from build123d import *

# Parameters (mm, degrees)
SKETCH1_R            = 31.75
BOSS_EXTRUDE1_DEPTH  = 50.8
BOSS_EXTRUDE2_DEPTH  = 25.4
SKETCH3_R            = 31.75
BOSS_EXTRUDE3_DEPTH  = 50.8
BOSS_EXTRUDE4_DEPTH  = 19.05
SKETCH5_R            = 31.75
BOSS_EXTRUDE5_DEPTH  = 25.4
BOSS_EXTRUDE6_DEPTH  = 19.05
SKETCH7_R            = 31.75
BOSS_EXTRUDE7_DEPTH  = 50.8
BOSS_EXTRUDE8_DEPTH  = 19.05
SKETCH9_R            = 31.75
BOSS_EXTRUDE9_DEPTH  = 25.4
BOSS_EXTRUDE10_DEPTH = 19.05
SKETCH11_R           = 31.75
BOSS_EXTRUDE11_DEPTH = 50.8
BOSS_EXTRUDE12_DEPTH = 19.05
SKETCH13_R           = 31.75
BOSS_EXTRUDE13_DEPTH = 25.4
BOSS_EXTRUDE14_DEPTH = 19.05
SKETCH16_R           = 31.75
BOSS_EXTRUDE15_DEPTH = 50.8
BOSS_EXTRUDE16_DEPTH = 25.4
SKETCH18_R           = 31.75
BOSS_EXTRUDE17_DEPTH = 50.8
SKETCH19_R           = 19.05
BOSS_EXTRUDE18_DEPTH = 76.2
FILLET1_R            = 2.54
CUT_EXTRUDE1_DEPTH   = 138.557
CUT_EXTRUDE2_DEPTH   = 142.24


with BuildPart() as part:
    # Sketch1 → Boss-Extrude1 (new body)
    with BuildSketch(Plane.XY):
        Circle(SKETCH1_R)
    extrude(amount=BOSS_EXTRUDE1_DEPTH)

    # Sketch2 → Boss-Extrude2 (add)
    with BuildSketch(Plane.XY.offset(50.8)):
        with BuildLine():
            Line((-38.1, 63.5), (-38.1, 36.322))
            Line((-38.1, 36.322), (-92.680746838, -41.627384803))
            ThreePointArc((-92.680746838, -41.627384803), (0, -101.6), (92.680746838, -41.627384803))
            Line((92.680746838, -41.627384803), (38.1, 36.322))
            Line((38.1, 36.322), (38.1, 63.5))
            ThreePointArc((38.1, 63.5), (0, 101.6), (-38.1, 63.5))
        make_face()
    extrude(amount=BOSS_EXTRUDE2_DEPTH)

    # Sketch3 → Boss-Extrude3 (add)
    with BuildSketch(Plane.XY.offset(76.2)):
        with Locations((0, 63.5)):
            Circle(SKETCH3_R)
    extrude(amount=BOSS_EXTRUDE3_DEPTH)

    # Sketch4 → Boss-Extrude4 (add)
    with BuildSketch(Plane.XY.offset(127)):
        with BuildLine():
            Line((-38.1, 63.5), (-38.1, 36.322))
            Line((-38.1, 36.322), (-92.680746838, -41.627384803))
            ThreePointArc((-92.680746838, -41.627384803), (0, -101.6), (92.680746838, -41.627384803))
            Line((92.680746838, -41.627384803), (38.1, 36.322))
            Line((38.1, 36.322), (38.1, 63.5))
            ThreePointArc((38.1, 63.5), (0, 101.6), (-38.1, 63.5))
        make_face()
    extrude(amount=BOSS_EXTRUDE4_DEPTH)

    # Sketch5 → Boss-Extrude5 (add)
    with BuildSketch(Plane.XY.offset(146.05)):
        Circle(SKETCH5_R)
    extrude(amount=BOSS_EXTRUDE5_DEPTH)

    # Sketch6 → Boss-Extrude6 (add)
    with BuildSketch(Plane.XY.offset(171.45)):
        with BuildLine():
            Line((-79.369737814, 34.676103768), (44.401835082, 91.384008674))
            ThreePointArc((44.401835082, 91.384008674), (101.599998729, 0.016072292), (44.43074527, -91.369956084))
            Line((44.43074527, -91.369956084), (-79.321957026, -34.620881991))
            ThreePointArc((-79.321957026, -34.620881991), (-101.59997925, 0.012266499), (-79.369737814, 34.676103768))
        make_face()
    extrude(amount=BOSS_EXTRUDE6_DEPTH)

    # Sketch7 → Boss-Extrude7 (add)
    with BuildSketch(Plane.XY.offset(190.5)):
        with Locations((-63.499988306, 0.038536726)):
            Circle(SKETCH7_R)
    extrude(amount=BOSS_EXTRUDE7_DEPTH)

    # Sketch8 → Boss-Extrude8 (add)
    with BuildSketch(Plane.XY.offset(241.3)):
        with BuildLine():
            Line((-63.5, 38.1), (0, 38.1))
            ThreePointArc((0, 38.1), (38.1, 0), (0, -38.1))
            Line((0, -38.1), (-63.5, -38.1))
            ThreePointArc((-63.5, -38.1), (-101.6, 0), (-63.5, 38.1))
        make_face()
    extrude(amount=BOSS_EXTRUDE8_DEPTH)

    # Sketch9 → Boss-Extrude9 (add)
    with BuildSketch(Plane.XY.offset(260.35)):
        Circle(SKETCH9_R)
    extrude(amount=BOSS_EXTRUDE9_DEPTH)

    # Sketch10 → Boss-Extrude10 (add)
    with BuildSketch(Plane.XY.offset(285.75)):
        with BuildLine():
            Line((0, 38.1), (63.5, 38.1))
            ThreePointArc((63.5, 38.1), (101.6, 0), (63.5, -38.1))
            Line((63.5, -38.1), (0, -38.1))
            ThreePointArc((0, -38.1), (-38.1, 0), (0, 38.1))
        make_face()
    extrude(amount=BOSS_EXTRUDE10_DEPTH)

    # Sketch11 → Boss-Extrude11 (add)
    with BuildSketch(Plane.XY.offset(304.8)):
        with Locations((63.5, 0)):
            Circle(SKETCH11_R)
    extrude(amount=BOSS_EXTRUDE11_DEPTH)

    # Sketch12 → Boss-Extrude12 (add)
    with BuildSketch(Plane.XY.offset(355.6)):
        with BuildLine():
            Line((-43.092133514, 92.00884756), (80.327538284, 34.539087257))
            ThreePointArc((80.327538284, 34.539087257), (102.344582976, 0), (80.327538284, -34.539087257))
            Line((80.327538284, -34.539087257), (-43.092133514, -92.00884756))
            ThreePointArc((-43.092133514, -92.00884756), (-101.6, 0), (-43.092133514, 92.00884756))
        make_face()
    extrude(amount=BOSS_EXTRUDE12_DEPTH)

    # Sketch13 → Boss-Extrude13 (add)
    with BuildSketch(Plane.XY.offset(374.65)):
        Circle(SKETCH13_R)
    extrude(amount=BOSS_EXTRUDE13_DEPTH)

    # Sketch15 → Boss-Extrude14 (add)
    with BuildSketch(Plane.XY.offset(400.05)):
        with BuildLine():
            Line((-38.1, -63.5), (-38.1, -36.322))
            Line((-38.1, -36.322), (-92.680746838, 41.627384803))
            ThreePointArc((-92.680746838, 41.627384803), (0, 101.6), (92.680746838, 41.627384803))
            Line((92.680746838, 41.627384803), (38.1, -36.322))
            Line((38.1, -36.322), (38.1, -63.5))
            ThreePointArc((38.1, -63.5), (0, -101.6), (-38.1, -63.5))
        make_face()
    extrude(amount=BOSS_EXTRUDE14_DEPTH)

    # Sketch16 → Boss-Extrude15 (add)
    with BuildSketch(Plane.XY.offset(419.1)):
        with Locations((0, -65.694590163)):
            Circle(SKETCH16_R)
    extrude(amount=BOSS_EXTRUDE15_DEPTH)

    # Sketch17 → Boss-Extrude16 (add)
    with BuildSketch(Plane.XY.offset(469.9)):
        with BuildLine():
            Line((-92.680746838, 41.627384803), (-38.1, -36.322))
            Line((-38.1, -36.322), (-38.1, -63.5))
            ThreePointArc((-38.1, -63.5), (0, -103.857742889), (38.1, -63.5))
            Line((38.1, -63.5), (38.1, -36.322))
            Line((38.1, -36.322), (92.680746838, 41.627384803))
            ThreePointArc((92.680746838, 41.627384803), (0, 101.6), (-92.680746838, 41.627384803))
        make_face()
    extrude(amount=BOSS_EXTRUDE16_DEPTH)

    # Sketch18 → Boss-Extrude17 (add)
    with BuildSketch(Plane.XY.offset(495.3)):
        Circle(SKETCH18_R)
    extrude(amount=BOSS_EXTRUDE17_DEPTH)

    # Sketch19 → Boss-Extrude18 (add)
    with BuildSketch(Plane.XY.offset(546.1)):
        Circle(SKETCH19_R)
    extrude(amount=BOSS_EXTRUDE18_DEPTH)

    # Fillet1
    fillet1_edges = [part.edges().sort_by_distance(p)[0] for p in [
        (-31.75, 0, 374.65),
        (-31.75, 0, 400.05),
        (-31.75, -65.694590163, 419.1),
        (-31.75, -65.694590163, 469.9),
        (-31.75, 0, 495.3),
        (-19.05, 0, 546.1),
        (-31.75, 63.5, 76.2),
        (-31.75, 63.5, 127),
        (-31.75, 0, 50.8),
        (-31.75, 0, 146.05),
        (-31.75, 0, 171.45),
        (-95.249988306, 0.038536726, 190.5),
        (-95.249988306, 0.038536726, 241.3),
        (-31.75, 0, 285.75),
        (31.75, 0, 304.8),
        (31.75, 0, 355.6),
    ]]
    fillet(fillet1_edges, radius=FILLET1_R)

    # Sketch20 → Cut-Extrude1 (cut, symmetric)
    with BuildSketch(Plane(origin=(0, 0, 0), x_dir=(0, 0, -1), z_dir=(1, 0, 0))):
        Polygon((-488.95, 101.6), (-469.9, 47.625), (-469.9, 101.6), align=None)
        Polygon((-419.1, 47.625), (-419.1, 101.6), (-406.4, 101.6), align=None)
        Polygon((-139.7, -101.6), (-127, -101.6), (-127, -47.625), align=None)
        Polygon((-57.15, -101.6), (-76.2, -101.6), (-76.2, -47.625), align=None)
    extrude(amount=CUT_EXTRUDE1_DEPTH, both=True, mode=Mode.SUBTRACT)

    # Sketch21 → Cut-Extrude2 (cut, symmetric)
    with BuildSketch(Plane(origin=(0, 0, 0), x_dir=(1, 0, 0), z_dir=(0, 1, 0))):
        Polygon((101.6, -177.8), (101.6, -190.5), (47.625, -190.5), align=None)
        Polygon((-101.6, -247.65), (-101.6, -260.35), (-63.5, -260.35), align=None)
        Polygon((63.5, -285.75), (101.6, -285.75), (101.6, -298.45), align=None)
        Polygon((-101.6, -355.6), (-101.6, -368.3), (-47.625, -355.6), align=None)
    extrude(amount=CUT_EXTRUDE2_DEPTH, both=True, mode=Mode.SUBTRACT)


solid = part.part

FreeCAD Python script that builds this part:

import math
import FreeCAD as App
import Part
import Sketcher

V = App.Vector
Q = App.Units.Quantity


def edges_at(feature, points):
    """Names of the edges that pass closest to the given points."""
    edges = feature.Shape.Edges
    near = lambda p: min(range(len(edges)), key=lambda i: edges[i].distToShape(Part.Vertex(*p))[0])
    return sorted({f"Edge{near(p) + 1}" for p in points})

doc = App.newDocument("Part")
body = doc.addObject("PartDesign::Body", "Body")

# Sketch on XY plane
sketch1 = doc.addObject("Sketcher::SketchObject", "Sketch")
body.addObject(sketch1)
sketch1.AttachmentSupport = (doc.XY_Plane, [""])
sketch1.MapMode = "FlatFace"
sketch1.addGeometry(Part.Circle(V(0, 0, 0), V(0, 0, 1), 31.75), False)
sketch1.addConstraint([
    Sketcher.Constraint("Coincident", 0, 3, -1, 1),
    Sketcher.Constraint("Diameter", 0, Q("2.5 in")),
])
pad1 = doc.addObject("PartDesign::Pad", "Pad")
body.addObject(pad1)
pad1.Profile = sketch1
pad1.Length = Q("2 in")

# Sketch on XY plane
sketch2 = doc.addObject("Sketcher::SketchObject", "Sketch001")
body.addObject(sketch2)
sketch2.AttachmentSupport = (doc.XY_Plane, [""])
sketch2.MapMode = "FlatFace"
sketch2.AttachmentOffset = App.Placement(V(0, 0, 2 * 25.4), App.Rotation())
sketch2.addGeometry([
    Part.LineSegment(V(-38.1, 63.5, 0), V(-38.1, 36.322, 0)),  # 0
    Part.LineSegment(V(-38.1, 36.322, 0), V(-92.680747, -41.627385, 0)),  # 1
    Part.ArcOfCircle(Part.Circle(V(0, 0, 0), V(0, 0, 1), 101.6), math.radians(-155.812857), math.radians(-24.187143)),  # 2
    Part.LineSegment(V(92.680747, -41.627385, 0), V(38.1, 36.322, 0)),  # 3
    Part.LineSegment(V(38.1, 36.322, 0), V(38.1, 63.5, 0)),  # 4
    Part.ArcOfCircle(Part.Circle(V(0, 63.5, 0), V(0, 0, 1), 38.1), math.radians(0), math.radians(180)),  # 5
], False)
sketch2.addConstraint([
    Sketcher.Constraint("Coincident", 0, 2, 1, 1),
    Sketcher.Constraint("Coincident", 1, 2, 2, 1),
    Sketcher.Constraint("Coincident", 2, 2, 3, 1),
    Sketcher.Constraint("Coincident", 3, 2, 4, 1),
    Sketcher.Constraint("Tangent", 4, 2, 5, 1),
    Sketcher.Constraint("Tangent", 5, 2, 0, 1),
    Sketcher.Constraint("Vertical", 0),
    Sketcher.Constraint("Vertical", 4),
    Sketcher.Constraint("Coincident", 2, 3, -1, 1),
    Sketcher.Constraint("Symmetric", 0, 2, 3, 2, -2),
    Sketcher.Constraint("Horizontal", 1, 2, 2, 2),
    Sketcher.Constraint("Radius", 2, Q("4 in")),
    Sketcher.Constraint("Radius", 5, Q("1.5 in")),
    Sketcher.Constraint("Angle", 1, Q("-125 deg")),
    Sketcher.Constraint("DistanceY", 0, 2, 0, 1, Q("1.07 in")),
    Sketcher.Constraint("DistanceY", -1, 1, 5, 3, Q("2.5 in")),
])
pad2 = doc.addObject("PartDesign::Pad", "Pad001")
body.addObject(pad2)
pad2.Profile = sketch2
pad2.Length = Q("1 in")

# Sketch on XY plane
sketch3 = doc.addObject("Sketcher::SketchObject", "Sketch002")
body.addObject(sketch3)
sketch3.AttachmentSupport = (doc.XY_Plane, [""])
sketch3.MapMode = "FlatFace"
sketch3.AttachmentOffset = App.Placement(V(0, 0, 3 * 25.4), App.Rotation())
sketch3.addGeometry(Part.Circle(V(0, 63.5, 0), V(0, 0, 1), 31.75), False)
sketch3.addConstraint([
    Sketcher.Constraint("PointOnObject", 0, 3, -2),
    Sketcher.Constraint("Diameter", 0, Q("2.5 in")),
    Sketcher.Constraint("DistanceY", -1, 1, 0, 3, Q("2.5 in")),
])
pad3 = doc.addObject("PartDesign::Pad", "Pad002")
body.addObject(pad3)
pad3.Profile = sketch3
pad3.Length = Q("2 in")

# Sketch on XY plane
sketch4 = doc.addObject("Sketcher::SketchObject", "Sketch003")
body.addObject(sketch4)
sketch4.AttachmentSupport = (doc.XY_Plane, [""])
sketch4.MapMode = "FlatFace"
sketch4.AttachmentOffset = App.Placement(V(0, 0, 5 * 25.4), App.Rotation())
sketch4.addGeometry([
    Part.LineSegment(V(-38.1, 63.5, 0), V(-38.1, 36.322, 0)),  # 0
    Part.LineSegment(V(-38.1, 36.322, 0), V(-92.680747, -41.627385, 0)),  # 1
    Part.ArcOfCircle(Part.Circle(V(0, 0, 0), V(0, 0, 1), 101.6), math.radians(-155.812857), math.radians(-24.187143)),  # 2
    Part.LineSegment(V(92.680747, -41.627385, 0), V(38.1, 36.322, 0)),  # 3
    Part.LineSegment(V(38.1, 36.322, 0), V(38.1, 63.5, 0)),  # 4
    Part.ArcOfCircle(Part.Circle(V(0, 63.5, 0), V(0, 0, 1), 38.1), math.radians(0), math.radians(180)),  # 5
], False)
sketch4.addConstraint([
    Sketcher.Constraint("Coincident", 0, 2, 1, 1),
    Sketcher.Constraint("Coincident", 1, 2, 2, 1),
    Sketcher.Constraint("Coincident", 2, 2, 3, 1),
    Sketcher.Constraint("Coincident", 3, 2, 4, 1),
    Sketcher.Constraint("Tangent", 4, 2, 5, 1),
    Sketcher.Constraint("Tangent", 5, 2, 0, 1),
    Sketcher.Constraint("Vertical", 0),
    Sketcher.Constraint("Vertical", 4),
    Sketcher.Constraint("Coincident", 2, 3, -1, 1),
    Sketcher.Constraint("Symmetric", 0, 2, 3, 2, -2),
    Sketcher.Constraint("Horizontal", 1, 2, 2, 2),
    Sketcher.Constraint("Radius", 2, Q("4 in")),
    Sketcher.Constraint("Radius", 5, Q("1.5 in")),
    Sketcher.Constraint("Angle", 1, Q("-125 deg")),
    Sketcher.Constraint("DistanceY", 0, 2, 0, 1, Q("1.07 in")),
    Sketcher.Constraint("DistanceY", -1, 1, 5, 3, Q("2.5 in")),
])
pad4 = doc.addObject("PartDesign::Pad", "Pad003")
body.addObject(pad4)
pad4.Profile = sketch4
pad4.Length = Q("0.75 in")

# Sketch on XY plane
sketch5 = doc.addObject("Sketcher::SketchObject", "Sketch004")
body.addObject(sketch5)
sketch5.AttachmentSupport = (doc.XY_Plane, [""])
sketch5.MapMode = "FlatFace"
sketch5.AttachmentOffset = App.Placement(V(0, 0, 5.75 * 25.4), App.Rotation())
sketch5.addGeometry(Part.Circle(V(0, 0, 0), V(0, 0, 1), 31.75), False)
sketch5.addConstraint([
    Sketcher.Constraint("Coincident", 0, 3, -1, 1),
    Sketcher.Constraint("Diameter", 0, Q("2.5 in")),
])
pad5 = doc.addObject("PartDesign::Pad", "Pad004")
body.addObject(pad5)
pad5.Profile = sketch5
pad5.Length = Q("1 in")

# Sketch on XY plane
sketch6 = doc.addObject("Sketcher::SketchObject", "Sketch005")
body.addObject(sketch6)
sketch6.AttachmentSupport = (doc.XY_Plane, [""])
sketch6.MapMode = "FlatFace"
sketch6.AttachmentOffset = App.Placement(V(0, 0, 6.75 * 25.4), App.Rotation())
sketch6.addGeometry([
    Part.LineSegment(V(44.401835, 91.384009, 0), V(-79.369738, 34.676104, 0)),
    Part.ArcOfCircle(Part.Circle(V(-63.499988, 0.038537, 0), V(0, 0, 1), 38.1), math.radians(114.615633), math.radians(245.463379)),
    Part.LineSegment(V(-79.321957, -34.620882, 0), V(44.430745, -91.369956, 0)),
    Part.ArcOfCircle(Part.Circle(V(0, 0, 0), V(0, 0, 1), 101.6), math.radians(-64.067595), math.radians(64.085722)),
], False)
sketch6.addConstraint([
    Sketcher.Constraint("Tangent", 0, 2, 1, 1),
    Sketcher.Constraint("Coincident", 1, 2, 2, 1),
    Sketcher.Constraint("Coincident", 2, 2, 3, 1),
    Sketcher.Constraint("Coincident", 3, 2, 0, 1),
    Sketcher.Constraint("Coincident", 3, 3, -1, 1),
    Sketcher.Constraint("Equal", 0, 2),
    Sketcher.Constraint("Radius", 3, Q("4 in")),
    Sketcher.Constraint("Radius", 1, Q("1.5 in")),
    Sketcher.Constraint("Distance", 0, Q("5.36 in")),
    Sketcher.Constraint("DistanceX", 1, 3, -1, 1, Q("63.499988 mm")),
    Sketcher.Constraint("DistanceY", 1, 2, -1, 1, Q("34.620882 mm")),
    Sketcher.Constraint("DistanceY", -1, 1, 3, 2, Q("91.384009 mm")),
])
pad6 = doc.addObject("PartDesign::Pad", "Pad005")
body.addObject(pad6)
pad6.Profile = sketch6
pad6.Length = Q("0.75 in")

# Sketch on XY plane
sketch7 = doc.addObject("Sketcher::SketchObject", "Sketch006")
body.addObject(sketch7)
sketch7.AttachmentSupport = (doc.XY_Plane, [""])
sketch7.MapMode = "FlatFace"
sketch7.AttachmentOffset = App.Placement(V(0, 0, 7.5 * 25.4), App.Rotation())
sketch7.addGeometry(Part.Circle(V(-63.499988, 0.038537, 0), V(0, 0, 1), 31.75), False)
sketch7.addConstraint([
    Sketcher.Constraint("Diameter", 0, Q("2.5 in")),
    Sketcher.Constraint("DistanceX", 0, 3, -1, 1, Q("63.499988 mm")),
    Sketcher.Constraint("DistanceY", -1, 1, 0, 3, Q("0.038537 mm")),
])
pad7 = doc.addObject("PartDesign::Pad", "Pad006")
body.addObject(pad7)
pad7.Profile = sketch7
pad7.Length = Q("2 in")

# Sketch on XY plane
sketch8 = doc.addObject("Sketcher::SketchObject", "Sketch007")
body.addObject(sketch8)
sketch8.AttachmentSupport = (doc.XY_Plane, [""])
sketch8.MapMode = "FlatFace"
sketch8.AttachmentOffset = App.Placement(V(0, 0, 9.5 * 25.4), App.Rotation())
sketch8.addGeometry([
    Part.LineSegment(V(0, 38.1, 0), V(-63.5, 38.1, 0)),
    Part.ArcOfCircle(Part.Circle(V(-63.5, 0, 0), V(0, 0, 1), 38.1), math.radians(90), math.radians(270)),
    Part.LineSegment(V(-63.5, -38.1, 0), V(0, -38.1, 0)),
    Part.ArcOfCircle(Part.Circle(V(0, 0, 0), V(0, 0, 1), 38.1), math.radians(-90), math.radians(90)),
], False)
sketch8.addConstraint([
    Sketcher.Constraint("Tangent", 0, 2, 1, 1),
    Sketcher.Constraint("Tangent", 1, 2, 2, 1),
    Sketcher.Constraint("Tangent", 2, 2, 3, 1),
    Sketcher.Constraint("Tangent", 3, 2, 0, 1),
    Sketcher.Constraint("Horizontal", 0),
    Sketcher.Constraint("Horizontal", 2),
    Sketcher.Constraint("Coincident", 3, 3, -1, 1),
    Sketcher.Constraint("Radius", 1, Q("1.5 in")),
    Sketcher.Constraint("DistanceX", 0, 2, 0, 1, Q("2.5 in")),
])
pad8 = doc.addObject("PartDesign::Pad", "Pad007")
body.addObject(pad8)
pad8.Profile = sketch8
pad8.Length = Q("0.75 in")

# Sketch on XY plane
sketch9 = doc.addObject("Sketcher::SketchObject", "Sketch008")
body.addObject(sketch9)
sketch9.AttachmentSupport = (doc.XY_Plane, [""])
sketch9.MapMode = "FlatFace"
sketch9.AttachmentOffset = App.Placement(V(0, 0, 10.25 * 25.4), App.Rotation())
sketch9.addGeometry(Part.Circle(V(0, 0, 0), V(0, 0, 1), 31.75), False)
sketch9.addConstraint([
    Sketcher.Constraint("Coincident", 0, 3, -1, 1),
    Sketcher.Constraint("Diameter", 0, Q("2.5 in")),
])
pad9 = doc.addObject("PartDesign::Pad", "Pad008")
body.addObject(pad9)
pad9.Profile = sketch9
pad9.Length = Q("1 in")

# Sketch on XY plane
sketch10 = doc.addObject("Sketcher::SketchObject", "Sketch009")
body.addObject(sketch10)
sketch10.AttachmentSupport = (doc.XY_Plane, [""])
sketch10.MapMode = "FlatFace"
sketch10.AttachmentOffset = App.Placement(V(0, 0, 11.25 * 25.4), App.Rotation())
sketch10.addGeometry([
    Part.LineSegment(V(63.5, 38.1, 0), V(0, 38.1, 0)),
    Part.ArcOfCircle(Part.Circle(V(0, 0, 0), V(0, 0, 1), 38.1), math.radians(90), math.radians(270)),
    Part.LineSegment(V(0, -38.1, 0), V(63.5, -38.1, 0)),
    Part.ArcOfCircle(Part.Circle(V(63.5, 0, 0), V(0, 0, 1), 38.1), math.radians(-90), math.radians(90)),
], False)
sketch10.addConstraint([
    Sketcher.Constraint("Tangent", 0, 2, 1, 1),
    Sketcher.Constraint("Tangent", 1, 2, 2, 1),
    Sketcher.Constraint("Tangent", 2, 2, 3, 1),
    Sketcher.Constraint("Tangent", 3, 2, 0, 1),
    Sketcher.Constraint("Horizontal", 0),
    Sketcher.Constraint("Horizontal", 2),
    Sketcher.Constraint("Coincident", 1, 3, -1, 1),
    Sketcher.Constraint("Radius", 1, Q("1.5 in")),
    Sketcher.Constraint("DistanceX", 0, 2, 0, 1, Q("2.5 in")),
])
pad10 = doc.addObject("PartDesign::Pad", "Pad009")
body.addObject(pad10)
pad10.Profile = sketch10
pad10.Length = Q("0.75 in")

# Sketch on XY plane
sketch11 = doc.addObject("Sketcher::SketchObject", "Sketch010")
body.addObject(sketch11)
sketch11.AttachmentSupport = (doc.XY_Plane, [""])
sketch11.MapMode = "FlatFace"
sketch11.AttachmentOffset = App.Placement(V(0, 0, 12 * 25.4), App.Rotation())
sketch11.addGeometry(Part.Circle(V(63.5, 0, 0), V(0, 0, 1), 31.75), False)
sketch11.addConstraint([
    Sketcher.Constraint("PointOnObject", 0, 3, -1),
    Sketcher.Constraint("Diameter", 0, Q("2.5 in")),
    Sketcher.Constraint("DistanceX", -1, 1, 0, 3, Q("2.5 in")),
])
pad11 = doc.addObject("PartDesign::Pad", "Pad010")
body.addObject(pad11)
pad11.Profile = sketch11
pad11.Length = Q("2 in")

# Sketch on XY plane
sketch12 = doc.addObject("Sketcher::SketchObject", "Sketch011")
body.addObject(sketch12)
sketch12.AttachmentSupport = (doc.XY_Plane, [""])
sketch12.MapMode = "FlatFace"
sketch12.AttachmentOffset = App.Placement(V(0, 0, 14 * 25.4), App.Rotation())
sketch12.addGeometry([
    Part.LineSegment(V(80.327538, 34.539087, 0), V(-43.092134, 92.008848, 0)),
    Part.ArcOfCircle(Part.Circle(V(0, 0, 0), V(0, 0, 1), 101.6), math.radians(115.095935), math.radians(244.904065)),
    Part.LineSegment(V(-43.092134, -92.008848, 0), V(80.327538, -34.539087, 0)),
    Part.ArcOfCircle(Part.Circle(V(64.244583, 0, 0), V(0, 0, 1), 38.1), math.radians(-65.031191), math.radians(65.031191)),
], False)
sketch12.addConstraint([
    Sketcher.Constraint("Coincident", 0, 2, 1, 1),
    Sketcher.Constraint("Coincident", 1, 2, 2, 1),
    Sketcher.Constraint("Tangent", 2, 2, 3, 1),
    Sketcher.Constraint("Tangent", 3, 2, 0, 1),
    Sketcher.Constraint("Coincident", 1, 3, -1, 1),
    Sketcher.Constraint("Symmetric", 2, 2, 3, 2, -1),
    Sketcher.Constraint("Radius", 1, Q("4 in")),
    Sketcher.Constraint("Radius", 3, Q("1.5 in")),
    Sketcher.Constraint("Distance", 0, Q("5.36 in")),
    Sketcher.Constraint("DistanceX", -1, 1, 2, 2, Q("80.327538 mm")),
])
pad12 = doc.addObject("PartDesign::Pad", "Pad011")
body.addObject(pad12)
pad12.Profile = sketch12
pad12.Length = Q("0.75 in")

# Sketch on XY plane
sketch13 = doc.addObject("Sketcher::SketchObject", "Sketch012")
body.addObject(sketch13)
sketch13.AttachmentSupport = (doc.XY_Plane, [""])
sketch13.MapMode = "FlatFace"
sketch13.AttachmentOffset = App.Placement(V(0, 0, 14.75 * 25.4), App.Rotation())
sketch13.addGeometry(Part.Circle(V(0, 0, 0), V(0, 0, 1), 31.75), False)
sketch13.addConstraint([
    Sketcher.Constraint("Coincident", 0, 3, -1, 1),
    Sketcher.Constraint("Diameter", 0, Q("2.5 in")),
])
pad13 = doc.addObject("PartDesign::Pad", "Pad012")
body.addObject(pad13)
pad13.Profile = sketch13
pad13.Length = Q("1 in")

# Sketch on XY plane
sketch14 = doc.addObject("Sketcher::SketchObject", "Sketch013")
body.addObject(sketch14)
sketch14.AttachmentSupport = (doc.XY_Plane, [""])
sketch14.MapMode = "FlatFace"
sketch14.AttachmentOffset = App.Placement(V(0, 0, 15.75 * 25.4), App.Rotation())
sketch14.addGeometry([
    Part.LineSegment(V(-38.1, -36.322, 0), V(-38.1, -63.5, 0)),  # 0
    Part.ArcOfCircle(Part.Circle(V(0, -63.5, 0), V(0, 0, 1), 38.1), math.radians(180), math.radians(360)),  # 1
    Part.LineSegment(V(38.1, -63.5, 0), V(38.1, -36.322, 0)),  # 2
    Part.LineSegment(V(38.1, -36.322, 0), V(92.680747, 41.627385, 0)),  # 3
    Part.ArcOfCircle(Part.Circle(V(0, 0, 0), V(0, 0, 1), 101.6), math.radians(24.187143), math.radians(155.812857)),  # 4
    Part.LineSegment(V(-92.680747, 41.627385, 0), V(-38.1, -36.322, 0)),  # 5
], False)
sketch14.addConstraint([
    Sketcher.Constraint("Tangent", 0, 2, 1, 1),
    Sketcher.Constraint("Tangent", 1, 2, 2, 1),
    Sketcher.Constraint("Coincident", 2, 2, 3, 1),
    Sketcher.Constraint("Coincident", 3, 2, 4, 1),
    Sketcher.Constraint("Coincident", 4, 2, 5, 1),
    Sketcher.Constraint("Coincident", 5, 2, 0, 1),
    Sketcher.Constraint("Vertical", 0),
    Sketcher.Constraint("Vertical", 2),
    Sketcher.Constraint("Coincident", 4, 3, -1, 1),
    Sketcher.Constraint("Symmetric", 2, 2, 5, 2, -2),
    Sketcher.Constraint("Horizontal", 3, 2, 4, 2),
    Sketcher.Constraint("Radius", 4, Q("4 in")),
    Sketcher.Constraint("Radius", 1, Q("1.5 in")),
    Sketcher.Constraint("Angle", 3, Q("55 deg")),
    Sketcher.Constraint("DistanceY", 0, 2, 0, 1, Q("1.07 in")),
    Sketcher.Constraint("DistanceY", 1, 3, -1, 1, Q("2.5 in")),
])
pad14 = doc.addObject("PartDesign::Pad", "Pad013")
body.addObject(pad14)
pad14.Profile = sketch14
pad14.Length = Q("0.75 in")

# Sketch on XY plane
sketch15 = doc.addObject("Sketcher::SketchObject", "Sketch014")
body.addObject(sketch15)
sketch15.AttachmentSupport = (doc.XY_Plane, [""])
sketch15.MapMode = "FlatFace"
sketch15.AttachmentOffset = App.Placement(V(0, 0, 16.5 * 25.4), App.Rotation())
sketch15.addGeometry(Part.Circle(V(0, -65.69459, 0), V(0, 0, 1), 31.75), False)
sketch15.addConstraint([
    Sketcher.Constraint("PointOnObject", 0, 3, -2),
    Sketcher.Constraint("Diameter", 0, Q("2.5 in")),
    Sketcher.Constraint("DistanceY", 0, 3, -1, 1, Q("65.69459 mm")),
])
pad15 = doc.addObject("PartDesign::Pad", "Pad014")
body.addObject(pad15)
pad15.Profile = sketch15
pad15.Length = Q("2 in")

# Sketch on XY plane
sketch16 = doc.addObject("Sketcher::SketchObject", "Sketch015")
body.addObject(sketch16)
sketch16.AttachmentSupport = (doc.XY_Plane, [""])
sketch16.MapMode = "FlatFace"
sketch16.AttachmentOffset = App.Placement(V(0, 0, 18.5 * 25.4), App.Rotation())
sketch16.addGeometry([
    Part.LineSegment(V(-92.680747, 41.627385, 0), V(-38.1, -36.322, 0)),  # 0
    Part.LineSegment(V(-38.1, -36.322, 0), V(-38.1, -63.5, 0)),  # 1
    Part.ArcOfCircle(Part.Circle(V(0, -65.69459, 0), V(0, 0, 1), 38.163153), math.radians(176.70336), math.radians(363.29664)),  # 2
    Part.LineSegment(V(38.1, -63.5, 0), V(38.1, -36.322, 0)),  # 3
    Part.LineSegment(V(38.1, -36.322, 0), V(92.680747, 41.627385, 0)),  # 4
    Part.ArcOfCircle(Part.Circle(V(0, 0, 0), V(0, 0, 1), 101.6), math.radians(24.187143), math.radians(155.812857)),  # 5
], False)
sketch16.addConstraint([
    Sketcher.Constraint("Coincident", 0, 2, 1, 1),
    Sketcher.Constraint("Coincident", 1, 2, 2, 1),
    Sketcher.Constraint("Coincident", 2, 2, 3, 1),
    Sketcher.Constraint("Coincident", 3, 2, 4, 1),
    Sketcher.Constraint("Coincident", 4, 2, 5, 1),
    Sketcher.Constraint("Coincident", 5, 2, 0, 1),
    Sketcher.Constraint("Vertical", 1),
    Sketcher.Constraint("Vertical", 3),
    Sketcher.Constraint("Coincident", 5, 3, -1, 1),
    Sketcher.Constraint("Symmetric", 1, 2, 2, 2, -2),
    Sketcher.Constraint("Horizontal", 0, 2, 3, 2),
    Sketcher.Constraint("Horizontal", 4, 2, 5, 2),
    Sketcher.Constraint("Radius", 5, Q("4 in")),
    Sketcher.Constraint("Angle", 0, Q("-55 deg")),
    Sketcher.Constraint("DistanceX", 1, 2, 2, 2, Q("3 in")),
    Sketcher.Constraint("DistanceY", 1, 2, 1, 1, Q("1.07 in")),
    Sketcher.Constraint("DistanceY", 1, 2, -1, 1, Q("2.5 in")),
    Sketcher.Constraint("Radius", 2, Q("38.163153 mm")),
])
pad16 = doc.addObject("PartDesign::Pad", "Pad015")
body.addObject(pad16)
pad16.Profile = sketch16
pad16.Length = Q("1 in")

# Sketch on XY plane
sketch17 = doc.addObject("Sketcher::SketchObject", "Sketch016")
body.addObject(sketch17)
sketch17.AttachmentSupport = (doc.XY_Plane, [""])
sketch17.MapMode = "FlatFace"
sketch17.AttachmentOffset = App.Placement(V(0, 0, 19.5 * 25.4), App.Rotation())
sketch17.addGeometry(Part.Circle(V(0, 0, 0), V(0, 0, 1), 31.75), False)
sketch17.addConstraint([
    Sketcher.Constraint("Coincident", 0, 3, -1, 1),
    Sketcher.Constraint("Diameter", 0, Q("2.5 in")),
])
pad17 = doc.addObject("PartDesign::Pad", "Pad016")
body.addObject(pad17)
pad17.Profile = sketch17
pad17.Length = Q("2 in")

# Sketch on XY plane
sketch18 = doc.addObject("Sketcher::SketchObject", "Sketch017")
body.addObject(sketch18)
sketch18.AttachmentSupport = (doc.XY_Plane, [""])
sketch18.MapMode = "FlatFace"
sketch18.AttachmentOffset = App.Placement(V(0, 0, 21.5 * 25.4), App.Rotation())
sketch18.addGeometry(Part.Circle(V(0, 0, 0), V(0, 0, 1), 19.05), False)
sketch18.addConstraint([
    Sketcher.Constraint("Coincident", 0, 3, -1, 1),
    Sketcher.Constraint("Diameter", 0, Q("1.5 in")),
])
pad18 = doc.addObject("PartDesign::Pad", "Pad017")
body.addObject(pad18)
pad18.Profile = sketch18
pad18.Length = Q("3 in")
doc.recompute()

fillet = doc.addObject("PartDesign::Fillet", "Fillet")
body.addObject(fillet)
fillet.Base = (pad18, edges_at(pad18, [
    (-31.75, 0, 374.65),
    (-31.75, 0, 400.05),
    (-31.75, -65.695, 419.1),
    (-31.75, -65.695, 469.9),
    (-31.75, 0, 495.3),
    (-19.05, 0, 546.1),
    (-31.75, 63.5, 76.2),
    (-31.75, 63.5, 127),
    (-31.75, 0, 50.8),
    (-31.75, 0, 146.05),
    (-31.75, 0, 171.45),
    (-95.25, 0.039, 190.5),
    (-95.25, 0.039, 241.3),
    (-31.75, 0, 285.75),
    (31.75, 0, 304.8),
    (31.75, 0, 355.6),
]))
fillet.Radius = Q("0.1 in")

# Sketch on YZ plane
sketch19 = doc.addObject("Sketcher::SketchObject", "Sketch018")
body.addObject(sketch19)
sketch19.AttachmentSupport = (doc.YZ_Plane, [""])
sketch19.MapMode = "FlatFace"
sketch19.addGeometry([
    Part.LineSegment(V(101.6, 488.95, 0), V(47.625, 469.9, 0)),  # 0
    Part.LineSegment(V(47.625, 469.9, 0), V(101.6, 469.9, 0)),  # 1
    Part.LineSegment(V(101.6, 469.9, 0), V(101.6, 488.95, 0)),  # 2
    Part.LineSegment(V(101.6, 419.1, 0), V(47.625, 419.1, 0)),  # 3
    Part.LineSegment(V(47.625, 419.1, 0), V(101.6, 406.4, 0)),  # 4
    Part.LineSegment(V(101.6, 406.4, 0), V(101.6, 419.1, 0)),  # 5
    Part.LineSegment(V(-101.6, 139.7, 0), V(-101.6, 127, 0)),  # 6
    Part.LineSegment(V(-101.6, 127, 0), V(-47.625, 127, 0)),  # 7
    Part.LineSegment(V(-47.625, 127, 0), V(-101.6, 139.7, 0)),  # 8
    Part.LineSegment(V(-101.6, 76.2, 0), V(-101.6, 57.15, 0)),  # 9
    Part.LineSegment(V(-101.6, 57.15, 0), V(-47.625, 76.2, 0)),  # 10
    Part.LineSegment(V(-47.625, 76.2, 0), V(-101.6, 76.2, 0)),  # 11
], False)
sketch19.addConstraint([
    Sketcher.Constraint("Coincident", 0, 2, 1, 1),
    Sketcher.Constraint("Coincident", 1, 2, 2, 1),
    Sketcher.Constraint("Coincident", 2, 2, 0, 1),
    Sketcher.Constraint("Coincident", 3, 2, 4, 1),
    Sketcher.Constraint("Coincident", 4, 2, 5, 1),
    Sketcher.Constraint("Coincident", 5, 2, 3, 1),
    Sketcher.Constraint("Coincident", 6, 2, 7, 1),
    Sketcher.Constraint("Coincident", 7, 2, 8, 1),
    Sketcher.Constraint("Coincident", 8, 2, 6, 1),
    Sketcher.Constraint("Coincident", 9, 2, 10, 1),
    Sketcher.Constraint("Coincident", 10, 2, 11, 1),
    Sketcher.Constraint("Coincident", 11, 2, 9, 1),
    Sketcher.Constraint("Horizontal", 1),
    Sketcher.Constraint("Vertical", 2),
    Sketcher.Constraint("Horizontal", 3),
    Sketcher.Constraint("Vertical", 5),
    Sketcher.Constraint("Vertical", 6),
    Sketcher.Constraint("Horizontal", 7),
    Sketcher.Constraint("Vertical", 9),
    Sketcher.Constraint("Horizontal", 11),
    Sketcher.Constraint("Parallel", 4, 8),
    Sketcher.Constraint("Parallel", 0, 10),
    Sketcher.Constraint("Vertical", 0, 2, 3, 2),
    Sketcher.Constraint("Vertical", 2, 2, 4, 2),
    Sketcher.Constraint("Vertical", 8, 2, 9, 2),
    Sketcher.Constraint("Vertical", 7, 2, 10, 2),
    Sketcher.Constraint("Equal", 3, 7),
    Sketcher.Constraint("DistanceY", 5, 1, 5, 2, Q("0.5 in")),
    Sketcher.Constraint("DistanceX", -1, 1, 1, 2, Q("4 in")),
    Sketcher.Constraint("DistanceY", -1, 1, 4, 2, Q("16 in")),
    Sketcher.Constraint("DistanceX", 6, 2, -1, 1, Q("4 in")),
    Sketcher.Constraint("DistanceY", -1, 1, 6, 2, Q("5 in")),
    Sketcher.Constraint("DistanceY", -1, 1, 10, 2, Q("3 in")),
    Sketcher.Constraint("DistanceY", 3, 2, 0, 2, Q("2 in")),
    Sketcher.Constraint("DistanceY", 2, 1, 2, 2, Q("0.75 in")),
    Sketcher.Constraint("DistanceX", 1, 1, 1, 2, Q("2.125 in")),
])
pocket1 = doc.addObject("PartDesign::Pocket", "Pocket")
body.addObject(pocket1)
pocket1.Profile = sketch19
pocket1.Length = Q("10.91 in")
pocket1.Midplane = True

# Sketch on XZ plane
sketch20 = doc.addObject("Sketcher::SketchObject", "Sketch019")
body.addObject(sketch20)
sketch20.AttachmentSupport = (doc.XZ_Plane, [""])
sketch20.MapMode = "FlatFace"
sketch20.addGeometry([
    Part.LineSegment(V(101.6, 190.5, 0), V(101.6, 177.8, 0)),  # 0
    Part.LineSegment(V(101.6, 177.8, 0), V(47.625, 190.5, 0)),  # 1
    Part.LineSegment(V(47.625, 190.5, 0), V(101.6, 190.5, 0)),  # 2
    Part.LineSegment(V(-101.6, 247.65, 0), V(-101.6, 260.35, 0)),  # 3
    Part.LineSegment(V(-101.6, 260.35, 0), V(-63.5, 260.35, 0)),  # 4
    Part.LineSegment(V(-63.5, 260.35, 0), V(-101.6, 247.65, 0)),  # 5
    Part.LineSegment(V(101.6, 285.75, 0), V(63.5, 285.75, 0)),  # 6
    Part.LineSegment(V(63.5, 285.75, 0), V(101.6, 298.45, 0)),  # 7
    Part.LineSegment(V(101.6, 298.45, 0), V(101.6, 285.75, 0)),  # 8
    Part.LineSegment(V(-101.6, 355.6, 0), V(-101.6, 368.3, 0)),  # 9
    Part.LineSegment(V(-101.6, 368.3, 0), V(-47.625, 355.6, 0)),  # 10
    Part.LineSegment(V(-47.625, 355.6, 0), V(-101.6, 355.6, 0)),  # 11
], False)
sketch20.addConstraint([
    Sketcher.Constraint("Coincident", 0, 2, 1, 1),
    Sketcher.Constraint("Coincident", 1, 2, 2, 1),
    Sketcher.Constraint("Coincident", 2, 2, 0, 1),
    Sketcher.Constraint("Coincident", 3, 2, 4, 1),
    Sketcher.Constraint("Coincident", 4, 2, 5, 1),
    Sketcher.Constraint("Coincident", 5, 2, 3, 1),
    Sketcher.Constraint("Coincident", 6, 2, 7, 1),
    Sketcher.Constraint("Coincident", 7, 2, 8, 1),
    Sketcher.Constraint("Coincident", 8, 2, 6, 1),
    Sketcher.Constraint("Coincident", 9, 2, 10, 1),
    Sketcher.Constraint("Coincident", 10, 2, 11, 1),
    Sketcher.Constraint("Coincident", 11, 2, 9, 1),
    Sketcher.Constraint("Vertical", 0),
    Sketcher.Constraint("Horizontal", 2),
    Sketcher.Constraint("Vertical", 3),
    Sketcher.Constraint("Horizontal", 4),
    Sketcher.Constraint("Horizontal", 6),
    Sketcher.Constraint("Vertical", 8),
    Sketcher.Constraint("Vertical", 9),
    Sketcher.Constraint("Horizontal", 11),
    Sketcher.Constraint("Parallel", 5, 7),
    Sketcher.Constraint("Parallel", 1, 10),
    Sketcher.Constraint("Vertical", 2, 2, 7, 2),
    Sketcher.Constraint("Vertical", 5, 2, 9, 2),
    Sketcher.Constraint("Equal", 4, 6),
    Sketcher.Constraint("Equal", 2, 11),
    Sketcher.Constraint("Equal", 0, 3),
    Sketcher.Constraint("DistanceX", 4, 1, 4, 2, Q("1.5 in")),
    Sketcher.Constraint("DistanceY", 0, 2, 0, 1, Q("0.5 in")),
    Sketcher.Constraint("DistanceX", -1, 1, 0, 2, Q("4 in")),
    Sketcher.Constraint("DistanceY", -1, 1, 0, 2, Q("7 in")),
    Sketcher.Constraint("DistanceX", 3, 2, -1, 1, Q("4 in")),
    Sketcher.Constraint("DistanceY", -1, 1, 10, 2, Q("14 in")),
    Sketcher.Constraint("DistanceY", 4, 2, 6, 2, Q("1 in")),
    Sketcher.Constraint("DistanceX", 2, 1, 2, 2, Q("2.125 in")),
    Sketcher.Constraint("DistanceY", -1, 1, 3, 2, Q("10.25 in")),
])
pocket2 = doc.addObject("PartDesign::Pocket", "Pocket001")
body.addObject(pocket2)
pocket2.Profile = sketch20
pocket2.Length = Q("11.2 in")
pocket2.Midplane = True

doc.recompute()
